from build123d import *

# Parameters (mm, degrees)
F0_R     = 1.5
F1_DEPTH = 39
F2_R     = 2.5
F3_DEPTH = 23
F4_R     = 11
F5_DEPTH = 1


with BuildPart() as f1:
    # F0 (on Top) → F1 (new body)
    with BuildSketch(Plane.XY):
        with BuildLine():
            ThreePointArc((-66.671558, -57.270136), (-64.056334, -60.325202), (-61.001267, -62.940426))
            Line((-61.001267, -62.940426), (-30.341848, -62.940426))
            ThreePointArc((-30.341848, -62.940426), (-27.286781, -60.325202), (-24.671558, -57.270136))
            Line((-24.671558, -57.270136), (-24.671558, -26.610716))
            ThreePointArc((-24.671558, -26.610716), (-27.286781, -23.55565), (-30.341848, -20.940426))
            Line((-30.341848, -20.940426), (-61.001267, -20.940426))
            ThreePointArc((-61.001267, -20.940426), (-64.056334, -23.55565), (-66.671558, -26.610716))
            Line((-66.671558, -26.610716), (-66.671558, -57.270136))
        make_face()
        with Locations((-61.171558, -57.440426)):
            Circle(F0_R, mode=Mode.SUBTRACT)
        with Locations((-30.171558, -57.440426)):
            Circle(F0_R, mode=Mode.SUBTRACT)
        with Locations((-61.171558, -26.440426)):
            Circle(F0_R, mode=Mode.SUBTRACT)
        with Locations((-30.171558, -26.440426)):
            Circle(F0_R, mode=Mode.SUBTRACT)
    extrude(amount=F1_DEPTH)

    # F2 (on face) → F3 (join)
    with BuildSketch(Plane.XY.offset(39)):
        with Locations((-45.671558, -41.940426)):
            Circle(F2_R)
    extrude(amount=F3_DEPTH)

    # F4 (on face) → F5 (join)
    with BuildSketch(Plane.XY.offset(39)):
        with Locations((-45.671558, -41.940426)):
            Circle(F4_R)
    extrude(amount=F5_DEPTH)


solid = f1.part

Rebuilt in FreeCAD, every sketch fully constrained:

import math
import FreeCAD as App
import Part
import Sketcher

V = App.Vector
Q = App.Units.Quantity

doc = App.newDocument("Part")
body = doc.addObject("PartDesign::Body", "Body")

sketch1 = body.newObject("Sketcher::SketchObject", "Sketch")
sketch1.AttachmentSupport = (doc.getObject("XY_Plane"), [""])
sketch1.MapMode = "FlatFace"
sketch1.addGeometry(Part.ArcOfCircle(Part.Circle(V(-45.671541, -41.940406, 0), V(0, 0, 1), 26.000026), math.radians(-143.871059), math.radians(-126.128931)), False)
sketch1.addGeometry(Part.LineSegment(V(-61.001267, -62.940426, 0), V(-30.341848, -62.940426, 0)), False)
sketch1.addGeometry(Part.ArcOfCircle(Part.Circle(V(-45.671552, -41.940432, 0), V(0, 0, 1), 25.999992), math.radians(-53.871075), math.radians(-36.128925)), False)
sketch1.addGeometry(Part.LineSegment(V(-24.671558, -57.270136, 0), V(-24.671558, -26.610716, 0)), False)
sketch1.addGeometry(Part.ArcOfCircle(Part.Circle(V(-45.671552, -41.94042, 0), V(0, 0, 1), 25.999992), math.radians(36.128925), math.radians(53.871075)), False)
sketch1.addGeometry(Part.LineSegment(V(-30.341848, -20.940426, 0), V(-61.001267, -20.940426, 0)), False)
sketch1.addGeometry(Part.ArcOfCircle(Part.Circle(V(-45.671541, -41.940446, 0), V(0, 0, 1), 26.000026), math.radians(126.128931), math.radians(143.871059)), False)
sketch1.addGeometry(Part.LineSegment(V(-66.671558, -26.610716, 0), V(-66.671558, -57.270136, 0)), False)
sketch1.addGeometry(Part.Circle(V(-61.171558, -57.440426, 0), V(0, 0, 1), 1.5), False)
sketch1.addGeometry(Part.Circle(V(-30.171558, -57.440426, 0), V(0, 0, 1), 1.5), False)
sketch1.addGeometry(Part.Circle(V(-61.171558, -26.440426, 0), V(0, 0, 1), 1.5), False)
sketch1.addGeometry(Part.Circle(V(-30.171558, -26.440426, 0), V(0, 0, 1), 1.5), False)
sketch1.addConstraint(Sketcher.Constraint("Coincident", 0, 2, 1, 1))
sketch1.addConstraint(Sketcher.Constraint("Coincident", 1, 2, 2, 1))
sketch1.addConstraint(Sketcher.Constraint("Coincident", 2, 2, 3, 1))
sketch1.addConstraint(Sketcher.Constraint("Coincident", 3, 2, 4, 1))
sketch1.addConstraint(Sketcher.Constraint("Coincident", 4, 2, 5, 1))
sketch1.addConstraint(Sketcher.Constraint("Coincident", 5, 2, 6, 1))
sketch1.addConstraint(Sketcher.Constraint("Coincident", 6, 2, 7, 1))
sketch1.addConstraint(Sketcher.Constraint("Coincident", 7, 2, 0, 1))
sketch1.addConstraint(Sketcher.Constraint("Horizontal", 1))
sketch1.addConstraint(Sketcher.Constraint("Vertical", 3))
sketch1.addConstraint(Sketcher.Constraint("Horizontal", 5))
sketch1.addConstraint(Sketcher.Constraint("Vertical", 7))
sketch1.addConstraint(Sketcher.Constraint("Equal", 2, 4))
sketch1.addConstraint(Sketcher.Constraint("Equal", 0, 6))
sketch1.addConstraint(Sketcher.Constraint("Equal", 8, 9))
sketch1.addConstraint(Sketcher.Constraint("Equal", 9, 10))
sketch1.addConstraint(Sketcher.Constraint("Equal", 10, 11))
sketch1.addConstraint(Sketcher.Constraint("Horizontal", 8, 3, 9, 3))
sketch1.addConstraint(Sketcher.Constraint("Horizontal", 10, 3, 11, 3))
sketch1.addConstraint(Sketcher.Constraint("Horizontal", 3, 2, 6, 2))
sketch1.addConstraint(Sketcher.Constraint("Horizontal", 2, 2, 7, 2))
sketch1.addConstraint(Sketcher.Constraint("Vertical", 2, 3, 4, 3))
sketch1.addConstraint(Sketcher.Constraint("Vertical", 0, 3, 6, 3))
sketch1.addConstraint(Sketcher.Constraint("Vertical", 8, 3, 10, 3))
sketch1.addConstraint(Sketcher.Constraint("Vertical", 9, 3, 11, 3))
sketch1.addConstraint(Sketcher.Constraint("Vertical", 1, 2, 4, 2))
sketch1.addConstraint(Sketcher.Constraint("Equal", 5, 3))
sketch1.addConstraint(Sketcher.Constraint("Diameter", 8, Q("3 mm")))
sketch1.addConstraint(Sketcher.Constraint("DistanceX", 8, 3, 9, 3, Q("31 mm")))
sketch1.addConstraint(Sketcher.Constraint("DistanceY", 8, 3, 10, 3, Q("31 mm")))
sketch1.addConstraint(Sketcher.Constraint("DistanceY", 0, 2, 8, 3, Q("5.5 mm")))
sketch1.addConstraint(Sketcher.Constraint("DistanceX", 9, 3, 2, 2, Q("5.5 mm")))
sketch1.addConstraint(Sketcher.Constraint("DistanceY", 11, 3, 4, 2, Q("5.5 mm")))
sketch1.addConstraint(Sketcher.Constraint("DistanceX", 6, 2, 10, 3, Q("5.5 mm")))
sketch1.addConstraint(Sketcher.Constraint("Radius", 2, Q("25.999992 mm")))
sketch1.addConstraint(Sketcher.Constraint("Radius", 0, Q("26.000026 mm")))
sketch1.addConstraint(Sketcher.Constraint("DistanceX", 1, 1, 1, 2, Q("30.659419 mm")))
sketch1.addConstraint(Sketcher.Constraint("DistanceX", 0, 3, -1, 1, Q("45.671541 mm")))
sketch1.addConstraint(Sketcher.Constraint("DistanceY", 2, 3, -1, 1, Q("41.940432 mm")))
sketch1.addConstraint(Sketcher.Constraint("DistanceY", 4, 3, -1, 1, Q("41.94042 mm")))
pad1 = body.newObject("PartDesign::Pad", "Pad")
pad1.Profile = sketch1
pad1.Length = 39

sketch2 = body.newObject("Sketcher::SketchObject", "Sketch001")
sketch2.AttachmentSupport = (doc.getObject("XY_Plane"), [""])
sketch2.MapMode = "FlatFace"
sketch2.AttachmentOffset = App.Placement(V(0, 0, 39), App.Rotation())
sketch2.addGeometry(Part.Circle(V(-45.671558, -41.940426, 0), V(0, 0, 1), 2.5), False)
sketch2.addConstraint(Sketcher.Constraint("Diameter", 0, Q("5 mm")))
sketch2.addConstraint(Sketcher.Constraint("DistanceX", 0, 3, -1, 1, Q("45.671558 mm")))
sketch2.addConstraint(Sketcher.Constraint("DistanceY", 0, 3, -1, 1, Q("41.940426 mm")))
pad2 = body.newObject("PartDesign::Pad", "Pad001")
pad2.Profile = sketch2
pad2.Length = 23

sketch3 = body.newObject("Sketcher::SketchObject", "Sketch002")
sketch3.AttachmentSupport = (doc.getObject("XY_Plane"), [""])
sketch3.MapMode = "FlatFace"
sketch3.AttachmentOffset = App.Placement(V(0, 0, 39), App.Rotation())
sketch3.addGeometry(Part.Circle(V(-45.671558, -41.940426, 0), V(0, 0, 1), 11), False)
sketch3.addConstraint(Sketcher.Constraint("Diameter", 0, Q("22 mm")))
sketch3.addConstraint(Sketcher.Constraint("DistanceX", 0, 3, -1, 1, Q("45.671558 mm")))
sketch3.addConstraint(Sketcher.Constraint("DistanceY", 0, 3, -1, 1, Q("41.940426 mm")))
pad3 = body.newObject("PartDesign::Pad", "Pad002")
pad3.Profile = sketch3
pad3.Length = 1

doc.recompute()
